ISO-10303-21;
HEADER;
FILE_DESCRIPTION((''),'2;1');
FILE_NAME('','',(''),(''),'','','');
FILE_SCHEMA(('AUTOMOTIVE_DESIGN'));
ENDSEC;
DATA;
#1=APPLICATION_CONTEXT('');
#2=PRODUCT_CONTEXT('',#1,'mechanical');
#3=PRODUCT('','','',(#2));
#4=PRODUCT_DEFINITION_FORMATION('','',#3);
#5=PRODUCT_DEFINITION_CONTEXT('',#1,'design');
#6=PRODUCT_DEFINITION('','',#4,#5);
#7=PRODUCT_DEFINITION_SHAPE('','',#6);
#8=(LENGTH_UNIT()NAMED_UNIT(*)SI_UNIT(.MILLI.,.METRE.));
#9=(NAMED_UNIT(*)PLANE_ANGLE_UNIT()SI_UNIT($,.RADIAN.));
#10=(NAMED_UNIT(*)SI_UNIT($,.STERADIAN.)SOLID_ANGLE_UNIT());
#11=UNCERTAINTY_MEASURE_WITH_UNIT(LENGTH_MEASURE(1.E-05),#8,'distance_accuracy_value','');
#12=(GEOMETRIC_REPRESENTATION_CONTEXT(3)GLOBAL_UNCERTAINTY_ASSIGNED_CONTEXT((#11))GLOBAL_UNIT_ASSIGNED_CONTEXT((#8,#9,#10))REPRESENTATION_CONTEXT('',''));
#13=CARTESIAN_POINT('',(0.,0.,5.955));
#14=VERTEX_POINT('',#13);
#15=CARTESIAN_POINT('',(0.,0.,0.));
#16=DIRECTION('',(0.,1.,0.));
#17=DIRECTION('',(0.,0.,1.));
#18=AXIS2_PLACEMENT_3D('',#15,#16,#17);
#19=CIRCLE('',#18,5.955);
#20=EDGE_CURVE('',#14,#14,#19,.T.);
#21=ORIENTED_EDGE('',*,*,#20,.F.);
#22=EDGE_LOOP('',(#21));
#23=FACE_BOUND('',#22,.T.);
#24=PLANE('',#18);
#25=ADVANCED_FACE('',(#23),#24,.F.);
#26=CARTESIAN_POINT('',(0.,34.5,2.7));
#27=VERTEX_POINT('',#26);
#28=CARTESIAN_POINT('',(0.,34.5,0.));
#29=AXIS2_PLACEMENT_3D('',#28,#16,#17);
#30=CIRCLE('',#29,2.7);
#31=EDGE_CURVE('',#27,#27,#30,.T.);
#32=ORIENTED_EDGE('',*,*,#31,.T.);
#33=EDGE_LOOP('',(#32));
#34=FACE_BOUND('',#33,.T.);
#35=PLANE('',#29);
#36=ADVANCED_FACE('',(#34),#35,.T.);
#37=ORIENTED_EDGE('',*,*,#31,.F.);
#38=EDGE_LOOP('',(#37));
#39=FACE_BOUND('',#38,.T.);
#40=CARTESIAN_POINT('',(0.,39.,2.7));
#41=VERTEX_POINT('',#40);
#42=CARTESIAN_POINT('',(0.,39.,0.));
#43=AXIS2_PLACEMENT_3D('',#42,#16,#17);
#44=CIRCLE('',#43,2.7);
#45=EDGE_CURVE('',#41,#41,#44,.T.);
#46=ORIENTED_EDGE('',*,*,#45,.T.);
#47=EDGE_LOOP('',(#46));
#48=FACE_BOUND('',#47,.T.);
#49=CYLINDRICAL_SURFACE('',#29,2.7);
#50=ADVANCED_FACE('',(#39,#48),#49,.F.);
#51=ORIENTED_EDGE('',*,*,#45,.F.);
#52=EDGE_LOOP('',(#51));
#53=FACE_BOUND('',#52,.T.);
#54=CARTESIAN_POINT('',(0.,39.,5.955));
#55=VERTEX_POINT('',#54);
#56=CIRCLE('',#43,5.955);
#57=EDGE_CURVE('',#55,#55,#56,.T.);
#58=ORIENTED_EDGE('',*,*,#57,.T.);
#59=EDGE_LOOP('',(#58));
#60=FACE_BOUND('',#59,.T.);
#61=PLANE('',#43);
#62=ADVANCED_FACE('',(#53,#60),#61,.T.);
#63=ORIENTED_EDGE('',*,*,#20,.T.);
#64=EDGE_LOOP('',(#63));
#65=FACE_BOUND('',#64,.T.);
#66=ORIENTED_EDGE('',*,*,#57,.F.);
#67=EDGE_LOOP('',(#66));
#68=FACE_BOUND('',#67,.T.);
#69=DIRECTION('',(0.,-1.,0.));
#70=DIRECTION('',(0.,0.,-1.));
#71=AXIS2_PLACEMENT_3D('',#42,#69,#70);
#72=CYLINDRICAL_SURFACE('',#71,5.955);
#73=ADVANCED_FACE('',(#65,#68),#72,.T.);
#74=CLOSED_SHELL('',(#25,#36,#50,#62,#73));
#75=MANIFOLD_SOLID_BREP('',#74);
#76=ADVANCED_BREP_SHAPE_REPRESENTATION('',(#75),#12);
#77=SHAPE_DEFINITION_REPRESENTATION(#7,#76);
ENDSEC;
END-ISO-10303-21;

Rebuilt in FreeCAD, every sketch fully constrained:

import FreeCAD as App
import Part
import Sketcher
Q = App.Units.Quantity

doc = App.newDocument("Part")
body = doc.addObject("PartDesign::Body", "Body")

sketch1 = doc.addObject("Sketcher::SketchObject", "Sketch")
body.addObject(sketch1)
sketch1.AttachmentSupport = (doc.XZ_Plane, [""])
sketch1.MapMode = "FlatFace"
sketch1.addGeometry(Part.Circle(App.Vector(0, 0, 0), App.Vector(0, 0, 1), 6), False)
sketch1.addConstraint([
    Sketcher.Constraint("Coincident", 0, 3, -1, 1),
    Sketcher.Constraint("Diameter", 0, Q("11.91 mm")),
])
pad1 = doc.addObject("PartDesign::Pad", "Pad")
body.addObject(pad1)
pad1.Profile = sketch1
pad1.Length = 39
pad1.Reversed = True

sketch2 = doc.addObject("Sketcher::SketchObject", "Sketch001")
body.addObject(sketch2)
sketch2.AttachmentSupport = (doc.XZ_Plane, [""])
sketch2.MapMode = "FlatFace"
sketch2.AttachmentOffset = App.Placement(App.Vector(0, 0, -39), App.Rotation())
sketch2.addGeometry(Part.Circle(App.Vector(0, 0, 0), App.Vector(0, 0, 1), 2.7), False)
sketch2.addConstraint([
    Sketcher.Constraint("Coincident", 0, 3, -1, 1),
    Sketcher.Constraint("Diameter", 0, Q("5.4 mm")),
])
pocket1 = doc.addObject("PartDesign::Pocket", "Pocket")
body.addObject(pocket1)
pocket1.Profile = sketch2
pocket1.Length = 4.5
pocket1.Reversed = True

doc.recompute()
